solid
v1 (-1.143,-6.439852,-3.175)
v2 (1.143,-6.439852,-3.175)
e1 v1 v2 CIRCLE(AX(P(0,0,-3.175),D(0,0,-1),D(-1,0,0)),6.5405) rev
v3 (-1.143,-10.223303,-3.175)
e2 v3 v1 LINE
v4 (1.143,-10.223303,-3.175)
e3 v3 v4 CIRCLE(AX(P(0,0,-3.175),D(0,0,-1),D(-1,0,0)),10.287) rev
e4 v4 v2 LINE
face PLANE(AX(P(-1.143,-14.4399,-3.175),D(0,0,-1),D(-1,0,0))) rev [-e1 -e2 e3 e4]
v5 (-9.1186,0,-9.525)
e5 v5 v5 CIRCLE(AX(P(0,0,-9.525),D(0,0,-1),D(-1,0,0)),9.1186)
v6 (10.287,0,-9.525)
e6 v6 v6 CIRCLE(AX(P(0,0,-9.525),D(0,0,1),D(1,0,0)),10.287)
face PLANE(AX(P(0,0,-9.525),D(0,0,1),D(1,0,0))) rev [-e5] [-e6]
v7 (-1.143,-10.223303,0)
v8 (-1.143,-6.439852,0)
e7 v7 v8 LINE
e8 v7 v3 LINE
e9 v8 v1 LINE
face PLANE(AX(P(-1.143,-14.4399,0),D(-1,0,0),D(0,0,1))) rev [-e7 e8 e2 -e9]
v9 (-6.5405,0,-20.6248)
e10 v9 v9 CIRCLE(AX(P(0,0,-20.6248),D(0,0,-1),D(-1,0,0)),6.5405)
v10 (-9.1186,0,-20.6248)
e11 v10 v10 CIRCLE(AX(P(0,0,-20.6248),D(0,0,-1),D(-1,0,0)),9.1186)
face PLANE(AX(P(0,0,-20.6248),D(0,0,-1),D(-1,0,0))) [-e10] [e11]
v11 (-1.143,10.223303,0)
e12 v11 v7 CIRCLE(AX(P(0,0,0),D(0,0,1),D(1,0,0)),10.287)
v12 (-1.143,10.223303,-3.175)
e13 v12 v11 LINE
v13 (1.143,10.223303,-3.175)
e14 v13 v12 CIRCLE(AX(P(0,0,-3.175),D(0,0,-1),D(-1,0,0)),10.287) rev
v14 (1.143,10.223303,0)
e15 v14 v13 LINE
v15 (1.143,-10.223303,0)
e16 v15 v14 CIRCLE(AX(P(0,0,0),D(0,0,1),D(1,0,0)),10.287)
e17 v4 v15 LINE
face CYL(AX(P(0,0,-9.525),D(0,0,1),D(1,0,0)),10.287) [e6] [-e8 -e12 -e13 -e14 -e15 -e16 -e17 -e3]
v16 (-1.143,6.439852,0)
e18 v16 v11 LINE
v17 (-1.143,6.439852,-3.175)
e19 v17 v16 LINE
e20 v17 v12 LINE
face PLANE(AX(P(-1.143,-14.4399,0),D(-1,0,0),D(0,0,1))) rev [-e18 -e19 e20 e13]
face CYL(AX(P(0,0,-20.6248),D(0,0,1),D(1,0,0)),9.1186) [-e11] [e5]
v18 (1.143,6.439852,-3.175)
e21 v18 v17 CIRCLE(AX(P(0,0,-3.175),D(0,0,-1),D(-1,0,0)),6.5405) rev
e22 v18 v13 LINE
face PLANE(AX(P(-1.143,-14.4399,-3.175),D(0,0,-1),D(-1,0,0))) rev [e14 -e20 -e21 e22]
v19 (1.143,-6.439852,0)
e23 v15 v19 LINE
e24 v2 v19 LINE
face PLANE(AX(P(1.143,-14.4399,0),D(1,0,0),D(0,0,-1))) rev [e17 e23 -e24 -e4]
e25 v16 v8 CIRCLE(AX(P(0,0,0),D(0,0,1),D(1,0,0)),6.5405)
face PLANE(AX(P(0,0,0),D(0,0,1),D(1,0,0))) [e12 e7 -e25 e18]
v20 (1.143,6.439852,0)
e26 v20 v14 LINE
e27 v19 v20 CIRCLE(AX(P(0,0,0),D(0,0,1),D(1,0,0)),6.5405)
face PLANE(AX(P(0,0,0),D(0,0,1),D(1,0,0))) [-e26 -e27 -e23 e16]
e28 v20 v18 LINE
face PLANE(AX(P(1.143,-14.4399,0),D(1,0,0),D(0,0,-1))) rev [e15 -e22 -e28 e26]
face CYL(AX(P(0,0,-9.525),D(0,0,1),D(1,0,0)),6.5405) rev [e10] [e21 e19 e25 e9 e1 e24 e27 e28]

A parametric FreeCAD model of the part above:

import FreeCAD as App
import Part
import Sketcher
Q = App.Units.Quantity

doc = App.newDocument("Part")
body = doc.addObject("PartDesign::Body", "Body")

sketch1 = body.newObject("Sketcher::SketchObject", "Sketch")
sketch1.AttachmentSupport = (doc.getObject("XY_Plane"), [""])
sketch1.MapMode = "FlatFace"
sketch1.addGeometry(Part.Circle(App.Vector(0, 0, 0), App.Vector(0, 0, 1), 10.287), False)
sketch1.addGeometry(Part.Circle(App.Vector(0, 0, 0), App.Vector(0, 0, 1), 6.5405), False)
sketch1.addConstraint(Sketcher.Constraint("Coincident", 0, 3, -1, 1))
sketch1.addConstraint(Sketcher.Constraint("Coincident", 1, 3, -1, 1))
sketch1.addConstraint(Sketcher.Constraint("Diameter", 0, Q("0.81 in")))
sketch1.addConstraint(Sketcher.Constraint("Diameter", 1, Q("0.515 in")))
pad1 = body.newObject("PartDesign::Pad", "Pad")
pad1.Profile = sketch1
pad1.Length = Q("0.375 in")
pad1.Reversed = True

sketch2 = body.newObject("Sketcher::SketchObject", "Sketch001")
sketch2.AttachmentSupport = (doc.getObject("XY_Plane"), [""])
sketch2.MapMode = "FlatFace"
sketch2.AttachmentOffset = App.Placement(App.Vector(0, 0, -0.375 * 25.4), App.Rotation())
sketch2.addGeometry(Part.Circle(App.Vector(0, 0, 0), App.Vector(0, 0, 1), 9.1186), False)
sketch2.addGeometry(Part.Circle(App.Vector(0, 0, 0), App.Vector(0, 0, 1), 6.5405), False)
sketch2.addConstraint(Sketcher.Constraint("Coincident", 0, 3, -1, 1))
sketch2.addConstraint(Sketcher.Constraint("Coincident", 1, 3, -1, 1))
sketch2.addConstraint(Sketcher.Constraint("Diameter", 0, Q("0.718 in")))
sketch2.addConstraint(Sketcher.Constraint("Diameter", 1, Q("0.515 in")))
pad2 = body.newObject("PartDesign::Pad", "Pad001")
pad2.Profile = sketch2
pad2.Length = Q("0.437 in")
pad2.Reversed = True

sketch3 = body.newObject("Sketcher::SketchObject", "Sketch002")
sketch3.AttachmentSupport = (doc.getObject("XZ_Plane"), [""])
sketch3.MapMode = "FlatFace"
sketch3.addGeometry(Part.LineSegment(App.Vector(-1.143, -3.175, 0), App.Vector(-1.143, 0, 0)), False)
sketch3.addGeometry(Part.LineSegment(App.Vector(-1.143, 0, 0), App.Vector(1.143, 0, 0)), False)
sketch3.addGeometry(Part.LineSegment(App.Vector(1.143, 0, 0), App.Vector(1.143, -3.175, 0)), False)
sketch3.addGeometry(Part.LineSegment(App.Vector(1.143, -3.175, 0), App.Vector(-1.143, -3.175, 0)), False)
sketch3.addConstraint(Sketcher.Constraint("Coincident", 0, 2, 1, 1))
sketch3.addConstraint(Sketcher.Constraint("Coincident", 1, 2, 2, 1))
sketch3.addConstraint(Sketcher.Constraint("Coincident", 2, 2, 3, 1))
sketch3.addConstraint(Sketcher.Constraint("Coincident", 3, 2, 0, 1))
sketch3.addConstraint(Sketcher.Constraint("Vertical", 0))
sketch3.addConstraint(Sketcher.Constraint("Horizontal", 1))
sketch3.addConstraint(Sketcher.Constraint("Vertical", 2))
sketch3.addConstraint(Sketcher.Constraint("Horizontal", 3))
sketch3.addConstraint(Sketcher.Constraint("Symmetric", 0, 2, 1, 2, -1, 1))
sketch3.addConstraint(Sketcher.Constraint("DistanceX", 1, 1, 1, 2, Q("0.09 in")))
sketch3.addConstraint(Sketcher.Constraint("DistanceY", 0, 1, 0, 2, Q("0.125 in")))
pocket1 = body.newObject("PartDesign::Pocket", "Pocket")
pocket1.Profile = sketch3
pocket1.Length = Q("1.137 in")
pocket1.Midplane = True

doc.recompute()
